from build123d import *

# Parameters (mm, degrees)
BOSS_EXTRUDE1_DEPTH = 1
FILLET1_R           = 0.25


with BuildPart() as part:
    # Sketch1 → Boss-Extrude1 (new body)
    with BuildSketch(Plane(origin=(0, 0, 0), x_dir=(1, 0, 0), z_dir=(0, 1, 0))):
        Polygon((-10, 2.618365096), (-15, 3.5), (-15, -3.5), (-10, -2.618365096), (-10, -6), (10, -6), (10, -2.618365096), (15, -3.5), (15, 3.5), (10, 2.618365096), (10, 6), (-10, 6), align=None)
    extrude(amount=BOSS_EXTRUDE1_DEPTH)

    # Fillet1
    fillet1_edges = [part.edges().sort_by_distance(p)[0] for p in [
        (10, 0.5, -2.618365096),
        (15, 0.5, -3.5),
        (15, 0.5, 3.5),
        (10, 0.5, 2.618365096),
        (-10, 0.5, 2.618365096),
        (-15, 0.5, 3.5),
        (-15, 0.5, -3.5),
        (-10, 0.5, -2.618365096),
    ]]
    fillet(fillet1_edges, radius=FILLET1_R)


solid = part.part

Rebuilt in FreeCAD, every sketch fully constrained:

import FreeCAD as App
import Part
import Sketcher
Q = App.Units.Quantity


def edges_at(feature, points):
    """Names of the edges that pass closest to the given points."""
    edges = feature.Shape.Edges
    near = lambda p: min(range(len(edges)), key=lambda i: edges[i].distToShape(Part.Vertex(*p))[0])
    return sorted({f"Edge{near(p) + 1}" for p in points})


def add_polygon(sketch, points):
    """Adds a closed chain of lines whose ends are joined by coincident constraints."""
    first, n = sketch.GeometryCount, len(points)
    for a, b in zip(points, points[1:] + points[:1]):
        sketch.addGeometry(Part.LineSegment(App.Vector(*a, 0), App.Vector(*b, 0)), False)
    for i in range(n):
        sketch.addConstraint(Sketcher.Constraint("Coincident", first + i, 2, first + (i + 1) % n, 1))

doc = App.newDocument("Part")
body = doc.addObject("PartDesign::Body", "Body")

sketch1 = body.newObject("Sketcher::SketchObject", "Sketch")
sketch1.AttachmentSupport = (doc.getObject("XZ_Plane"), [""])
sketch1.MapMode = "FlatFace"
add_polygon(sketch1, [(-10, -2.618365), (-15, -3.5), (-15, 3.5), (-10, 2.618365), (-10, 6), (10, 6), (10, 2.618365), (15, 3.5), (15, -3.5), (10, -2.618365), (10, -6), (-10, -6)])
sketch1.addConstraint([
    Sketcher.Constraint("Vertical", 1),
    Sketcher.Constraint("Vertical", 3),
    Sketcher.Constraint("Horizontal", 4),
    Sketcher.Constraint("Vertical", 5),
    Sketcher.Constraint("Vertical", 7),
    Sketcher.Constraint("Vertical", 9),
    Sketcher.Constraint("Horizontal", 10),
    Sketcher.Constraint("Vertical", 11),
    Sketcher.Constraint("Symmetric", 0, 2, 6, 2, -1, 1),
    Sketcher.Constraint("Symmetric", 2, 2, 8, 2, -1, 1),
    Sketcher.Constraint("Symmetric", 4, 2, 10, 2, -1, 1),
    Sketcher.Constraint("Symmetric", 2, 2, 5, 2, -2),
    Sketcher.Constraint("Parallel", 0, 6),
    Sketcher.Constraint("Parallel", 2, 8),
    Sketcher.Constraint("Horizontal", 1, 2, 6, 2),
    Sketcher.Constraint("DistanceX", 4, 1, 4, 2, Q("20 mm")),
    Sketcher.Constraint("DistanceY", 1, 1, 1, 2, Q("7 mm")),
    Sketcher.Constraint("Angle", 0, Q("-170 deg")),
    Sketcher.Constraint("DistanceX", 0, 2, -1, 1, Q("15 mm")),
    Sketcher.Constraint("DistanceY", -1, 1, 3, 2, Q("6 mm")),
])
pad1 = body.newObject("PartDesign::Pad", "Pad")
pad1.Profile = sketch1
pad1.Length = 1
pad1.Reversed = True
doc.recompute()

fillet = body.newObject("PartDesign::Fillet", "Fillet")
fillet.Base = (pad1, edges_at(pad1, [
    (10, 0.5, -2.618),
    (15, 0.5, -3.5),
    (15, 0.5, 3.5),
    (10, 0.5, 2.618),
    (-10, 0.5, 2.618),
    (-15, 0.5, 3.5),
    (-15, 0.5, -3.5),
    (-10, 0.5, -2.618),
]))
fillet.Radius = 0.25

doc.recompute()
